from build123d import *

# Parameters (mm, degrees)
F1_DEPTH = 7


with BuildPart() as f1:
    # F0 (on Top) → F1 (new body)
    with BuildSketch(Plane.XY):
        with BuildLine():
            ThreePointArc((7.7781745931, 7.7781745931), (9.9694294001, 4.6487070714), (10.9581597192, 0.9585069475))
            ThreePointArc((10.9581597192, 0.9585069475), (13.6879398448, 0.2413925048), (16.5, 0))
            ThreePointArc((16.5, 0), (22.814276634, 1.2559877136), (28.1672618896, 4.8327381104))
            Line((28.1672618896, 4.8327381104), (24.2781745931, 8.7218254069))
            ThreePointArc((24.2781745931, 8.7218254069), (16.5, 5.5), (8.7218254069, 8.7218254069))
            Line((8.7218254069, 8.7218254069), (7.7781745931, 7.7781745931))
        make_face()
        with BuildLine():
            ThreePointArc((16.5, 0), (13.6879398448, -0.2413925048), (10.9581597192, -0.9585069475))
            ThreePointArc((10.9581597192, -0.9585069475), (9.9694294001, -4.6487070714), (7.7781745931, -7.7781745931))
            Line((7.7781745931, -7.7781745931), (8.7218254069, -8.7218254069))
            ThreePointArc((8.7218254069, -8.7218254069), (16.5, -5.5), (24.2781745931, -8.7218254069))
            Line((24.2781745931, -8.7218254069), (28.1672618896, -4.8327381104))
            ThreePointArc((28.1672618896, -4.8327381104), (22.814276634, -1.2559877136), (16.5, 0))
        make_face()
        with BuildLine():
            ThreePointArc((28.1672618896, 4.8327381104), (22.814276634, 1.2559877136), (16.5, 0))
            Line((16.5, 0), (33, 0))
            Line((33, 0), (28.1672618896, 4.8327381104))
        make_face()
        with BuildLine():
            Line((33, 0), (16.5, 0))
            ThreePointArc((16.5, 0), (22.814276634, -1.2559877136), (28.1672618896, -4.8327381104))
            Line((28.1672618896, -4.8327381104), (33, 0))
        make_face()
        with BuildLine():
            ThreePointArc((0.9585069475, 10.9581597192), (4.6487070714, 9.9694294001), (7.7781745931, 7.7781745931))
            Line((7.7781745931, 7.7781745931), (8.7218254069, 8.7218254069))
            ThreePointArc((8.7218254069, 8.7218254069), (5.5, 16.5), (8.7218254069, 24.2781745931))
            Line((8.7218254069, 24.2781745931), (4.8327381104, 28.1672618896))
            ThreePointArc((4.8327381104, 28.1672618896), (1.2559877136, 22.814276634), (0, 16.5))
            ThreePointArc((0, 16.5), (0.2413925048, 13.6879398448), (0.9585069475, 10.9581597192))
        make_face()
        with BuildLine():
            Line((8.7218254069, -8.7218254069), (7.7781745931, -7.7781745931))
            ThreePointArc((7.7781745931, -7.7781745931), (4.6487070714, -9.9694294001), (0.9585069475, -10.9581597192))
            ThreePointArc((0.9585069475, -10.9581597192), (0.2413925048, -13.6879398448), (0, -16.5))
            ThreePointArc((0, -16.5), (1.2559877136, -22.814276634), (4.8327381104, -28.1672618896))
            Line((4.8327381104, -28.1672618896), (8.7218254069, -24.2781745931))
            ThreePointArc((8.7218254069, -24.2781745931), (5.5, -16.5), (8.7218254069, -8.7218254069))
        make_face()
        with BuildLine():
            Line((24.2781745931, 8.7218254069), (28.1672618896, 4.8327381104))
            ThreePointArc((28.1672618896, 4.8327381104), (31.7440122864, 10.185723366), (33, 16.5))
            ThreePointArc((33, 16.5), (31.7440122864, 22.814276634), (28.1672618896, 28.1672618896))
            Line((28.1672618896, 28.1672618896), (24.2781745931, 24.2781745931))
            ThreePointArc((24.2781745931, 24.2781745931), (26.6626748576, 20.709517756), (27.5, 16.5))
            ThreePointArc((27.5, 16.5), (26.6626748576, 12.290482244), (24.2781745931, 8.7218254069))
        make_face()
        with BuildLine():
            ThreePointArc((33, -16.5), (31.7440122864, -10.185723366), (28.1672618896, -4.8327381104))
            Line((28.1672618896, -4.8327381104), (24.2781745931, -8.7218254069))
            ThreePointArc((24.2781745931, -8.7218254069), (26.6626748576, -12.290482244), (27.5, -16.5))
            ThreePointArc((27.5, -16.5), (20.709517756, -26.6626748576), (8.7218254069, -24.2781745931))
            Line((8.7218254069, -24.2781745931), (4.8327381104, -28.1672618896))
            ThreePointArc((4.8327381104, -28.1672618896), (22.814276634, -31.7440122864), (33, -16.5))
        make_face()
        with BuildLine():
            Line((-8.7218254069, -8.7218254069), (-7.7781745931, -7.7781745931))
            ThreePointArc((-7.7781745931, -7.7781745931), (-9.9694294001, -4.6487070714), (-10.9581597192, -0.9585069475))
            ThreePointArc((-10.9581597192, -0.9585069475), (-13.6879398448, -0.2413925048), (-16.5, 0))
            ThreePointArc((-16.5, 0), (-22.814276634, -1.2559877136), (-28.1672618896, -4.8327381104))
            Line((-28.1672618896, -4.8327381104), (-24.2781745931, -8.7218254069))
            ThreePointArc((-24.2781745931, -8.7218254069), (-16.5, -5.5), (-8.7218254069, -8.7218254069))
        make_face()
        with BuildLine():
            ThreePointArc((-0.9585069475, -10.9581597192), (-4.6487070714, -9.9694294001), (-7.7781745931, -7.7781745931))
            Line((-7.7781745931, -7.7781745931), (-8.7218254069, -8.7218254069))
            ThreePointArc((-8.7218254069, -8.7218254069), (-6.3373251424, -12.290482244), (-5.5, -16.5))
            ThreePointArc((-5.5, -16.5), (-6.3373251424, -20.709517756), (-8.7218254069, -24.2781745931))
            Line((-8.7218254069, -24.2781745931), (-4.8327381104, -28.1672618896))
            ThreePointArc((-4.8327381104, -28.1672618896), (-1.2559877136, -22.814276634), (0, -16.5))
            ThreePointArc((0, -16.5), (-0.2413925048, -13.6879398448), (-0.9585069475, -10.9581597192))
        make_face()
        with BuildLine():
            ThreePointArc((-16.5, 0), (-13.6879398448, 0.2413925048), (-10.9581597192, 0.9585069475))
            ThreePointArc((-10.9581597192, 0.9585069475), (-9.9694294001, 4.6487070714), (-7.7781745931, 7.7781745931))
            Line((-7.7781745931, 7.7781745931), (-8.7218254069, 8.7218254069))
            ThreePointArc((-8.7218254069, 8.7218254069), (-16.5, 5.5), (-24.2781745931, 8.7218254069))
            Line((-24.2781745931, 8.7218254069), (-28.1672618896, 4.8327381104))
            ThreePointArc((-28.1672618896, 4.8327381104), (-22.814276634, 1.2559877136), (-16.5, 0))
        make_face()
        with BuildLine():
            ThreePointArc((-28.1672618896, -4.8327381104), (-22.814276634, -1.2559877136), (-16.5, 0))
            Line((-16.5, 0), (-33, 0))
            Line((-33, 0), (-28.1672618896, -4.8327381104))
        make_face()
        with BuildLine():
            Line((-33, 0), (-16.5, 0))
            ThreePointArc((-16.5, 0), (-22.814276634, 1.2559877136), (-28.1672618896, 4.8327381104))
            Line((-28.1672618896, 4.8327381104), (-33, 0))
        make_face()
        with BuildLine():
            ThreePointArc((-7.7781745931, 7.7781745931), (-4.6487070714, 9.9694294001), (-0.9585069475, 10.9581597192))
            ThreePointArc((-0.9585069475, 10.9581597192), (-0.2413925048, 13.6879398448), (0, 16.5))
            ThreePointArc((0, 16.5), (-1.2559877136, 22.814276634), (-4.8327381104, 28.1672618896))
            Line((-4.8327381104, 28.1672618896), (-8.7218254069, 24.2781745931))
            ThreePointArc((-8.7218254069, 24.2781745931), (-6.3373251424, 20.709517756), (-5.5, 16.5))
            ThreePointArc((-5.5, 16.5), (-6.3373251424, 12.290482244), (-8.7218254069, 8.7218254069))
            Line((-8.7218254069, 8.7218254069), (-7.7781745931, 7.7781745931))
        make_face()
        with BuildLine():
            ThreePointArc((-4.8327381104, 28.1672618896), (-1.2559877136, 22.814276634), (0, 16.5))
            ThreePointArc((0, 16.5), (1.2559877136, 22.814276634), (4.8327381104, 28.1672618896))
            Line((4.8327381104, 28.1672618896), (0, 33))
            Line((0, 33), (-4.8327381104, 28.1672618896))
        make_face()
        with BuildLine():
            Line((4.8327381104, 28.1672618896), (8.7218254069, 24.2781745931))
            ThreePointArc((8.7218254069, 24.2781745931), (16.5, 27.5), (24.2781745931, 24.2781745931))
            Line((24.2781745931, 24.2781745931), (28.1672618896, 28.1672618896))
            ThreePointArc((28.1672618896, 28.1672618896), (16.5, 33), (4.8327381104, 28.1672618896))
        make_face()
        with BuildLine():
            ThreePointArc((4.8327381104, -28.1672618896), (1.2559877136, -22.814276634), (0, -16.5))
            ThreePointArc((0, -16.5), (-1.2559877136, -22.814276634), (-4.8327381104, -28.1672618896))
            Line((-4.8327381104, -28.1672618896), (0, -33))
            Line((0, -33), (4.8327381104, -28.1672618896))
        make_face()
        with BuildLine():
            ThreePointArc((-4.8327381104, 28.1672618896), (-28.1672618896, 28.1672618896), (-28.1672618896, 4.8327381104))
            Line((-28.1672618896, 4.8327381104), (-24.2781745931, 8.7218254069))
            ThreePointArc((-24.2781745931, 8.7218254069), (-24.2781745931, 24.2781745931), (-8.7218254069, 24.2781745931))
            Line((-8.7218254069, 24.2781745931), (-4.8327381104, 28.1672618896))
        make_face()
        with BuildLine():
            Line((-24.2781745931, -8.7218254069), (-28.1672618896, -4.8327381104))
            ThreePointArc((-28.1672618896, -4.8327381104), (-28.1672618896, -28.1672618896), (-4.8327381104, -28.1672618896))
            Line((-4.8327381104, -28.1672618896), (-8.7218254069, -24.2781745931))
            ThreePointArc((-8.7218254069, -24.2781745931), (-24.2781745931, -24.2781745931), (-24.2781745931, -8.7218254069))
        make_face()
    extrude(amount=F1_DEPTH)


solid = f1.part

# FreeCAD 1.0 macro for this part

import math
import FreeCAD as App
import Part
import Sketcher
Q = App.Units.Quantity

doc = App.newDocument("Part")
body = doc.addObject("PartDesign::Body", "Body")

sketch1 = doc.addObject("Sketcher::SketchObject", "Sketch")
body.addObject(sketch1)
sketch1.AttachmentSupport = (doc.XY_Plane, [""])
sketch1.MapMode = "FlatFace"
sketch1.addGeometry(Part.LineSegment(App.Vector(-5, -28, 0), App.Vector(0, -33, 0)), False)
sketch1.addGeometry(Part.LineSegment(App.Vector(0, -33, 0), App.Vector(5, -28, 0)), False)
sketch1.addGeometry(Part.ArcOfCircle(Part.Circle(App.Vector(16, -16, 0), App.Vector(0, 0, 1), 16), math.radians(-135), math.radians(0)), False)
sketch1.addGeometry(Part.ArcOfCircle(Part.Circle(App.Vector(16, -16, 0), App.Vector(0, 0, 1), 17), math.radians(0), math.radians(45)), False)
sketch1.addGeometry(Part.LineSegment(App.Vector(28, -5, 0), App.Vector(33, 0, 0)), False)
sketch1.addGeometry(Part.LineSegment(App.Vector(33, 0, 0), App.Vector(28, 5, 0)), False)
sketch1.addGeometry(Part.ArcOfCircle(Part.Circle(App.Vector(16, 16, 0), App.Vector(0, 0, 1), 17), math.radians(-45), math.radians(0)), False)
sketch1.addGeometry(Part.ArcOfCircle(Part.Circle(App.Vector(16, 16, 0), App.Vector(0, 0, 1), 17), math.radians(0), math.radians(45)), False)
sketch1.addGeometry(Part.ArcOfCircle(Part.Circle(App.Vector(16, 16, 0), App.Vector(0, 0, 1), 16), math.radians(45), math.radians(135)), False)
sketch1.addGeometry(Part.LineSegment(App.Vector(5, 28, 0), App.Vector(0, 33, 0)), False)
sketch1.addGeometry(Part.LineSegment(App.Vector(0, 33, 0), App.Vector(-5, 28, 0)), False)
sketch1.addGeometry(Part.ArcOfCircle(Part.Circle(App.Vector(-16, 16, 0), App.Vector(0, 0, 1), 16), math.radians(45), math.radians(225)), False)
sketch1.addGeometry(Part.LineSegment(App.Vector(-28, 5, 0), App.Vector(-33, 0, 0)), False)
sketch1.addGeometry(Part.LineSegment(App.Vector(-33, 0, 0), App.Vector(-28, -5, 0)), False)
sketch1.addGeometry(Part.ArcOfCircle(Part.Circle(App.Vector(-16, -16, 0), App.Vector(0, 0, 1), 16), math.radians(135), math.radians(315)), False)
sketch1.addGeometry(Part.ArcOfCircle(Part.Circle(App.Vector(-16, -16, 0), App.Vector(0, 0, 1), 11), math.radians(45), math.radians(135)), False)
sketch1.addGeometry(Part.ArcOfCircle(Part.Circle(App.Vector(-17, -16, 0), App.Vector(0, 0, 1), 11), math.radians(0), math.radians(45)), False)
sketch1.addGeometry(Part.ArcOfCircle(Part.Circle(App.Vector(-17, -16, 0), App.Vector(0, 0, 1), 11), math.radians(-45), math.radians(0)), False)
sketch1.addGeometry(Part.ArcOfCircle(Part.Circle(App.Vector(-16, -16, 0), App.Vector(0, 0, 1), 11), math.radians(135), math.radians(315)), False)
sketch1.addGeometry(Part.ArcOfCircle(Part.Circle(App.Vector(-17, 16, 0), App.Vector(0, 0, 1), 11), math.radians(0), math.radians(45)), False)
sketch1.addGeometry(Part.ArcOfCircle(Part.Circle(App.Vector(-17, 16, 0), App.Vector(0, 0, 1), 11), math.radians(-45), math.radians(0)), False)
sketch1.addGeometry(Part.ArcOfCircle(Part.Circle(App.Vector(-16, 16, 0), App.Vector(0, 0, 1), 11), math.radians(-135), math.radians(-45)), False)
sketch1.addGeometry(Part.ArcOfCircle(Part.Circle(App.Vector(-16, 16, 0), App.Vector(0, 0, 1), 11), math.radians(45), math.radians(225)), False)
sketch1.addGeometry(Part.ArcOfCircle(Part.Circle(App.Vector(16, -16, 0), App.Vector(0, 0, 1), 16), math.radians(160.37), math.radians(180)), False)
sketch1.addGeometry(Part.ArcOfCircle(Part.Circle(App.Vector(-16, -16, 0), App.Vector(0, 0, 1), 16), math.radians(0), math.radians(19.63)), False)
sketch1.addGeometry(Part.ArcOfCircle(Part.Circle(App.Vector(0, 0, 0), App.Vector(0, 0, 1), 11), math.radians(-135), math.radians(-95)), False)
sketch1.addGeometry(Part.ArcOfCircle(Part.Circle(App.Vector(0, 0, 0), App.Vector(0, 0, 1), 11), math.radians(-175), math.radians(-135)), False)
sketch1.addGeometry(Part.ArcOfCircle(Part.Circle(App.Vector(-16, -16, 0), App.Vector(0, 0, 1), 16), math.radians(70.37), math.radians(90)), False)
sketch1.addGeometry(Part.ArcOfCircle(Part.Circle(App.Vector(-16, 16, 0), App.Vector(0, 0, 1), 16), math.radians(-90), math.radians(-70.37)), False)
sketch1.addGeometry(Part.ArcOfCircle(Part.Circle(App.Vector(0, 0, 0), App.Vector(0, 0, 1), 11), math.radians(135), math.radians(175)), False)
sketch1.addGeometry(Part.ArcOfCircle(Part.Circle(App.Vector(0, 0, 0), App.Vector(0, 0, 1), 11), math.radians(95), math.radians(135)), False)
sketch1.addGeometry(Part.ArcOfCircle(Part.Circle(App.Vector(-16, 16, 0), App.Vector(0, 0, 1), 16), math.radians(-19.63), math.radians(0)), False)
sketch1.addGeometry(Part.ArcOfCircle(Part.Circle(App.Vector(16, 16, 0), App.Vector(0, 0, 1), 16), math.radians(180), math.radians(199.63)), False)
sketch1.addGeometry(Part.ArcOfCircle(Part.Circle(App.Vector(0, 0, 0), App.Vector(0, 0, 1), 11), math.radians(45), math.radians(85)), False)
sketch1.addGeometry(Part.ArcOfCircle(Part.Circle(App.Vector(0, 0, 0), App.Vector(0, 0, 1), 11), math.radians(5), math.radians(45)), False)
sketch1.addGeometry(Part.ArcOfCircle(Part.Circle(App.Vector(16, 16, 0), App.Vector(0, 0, 1), 16), math.radians(-109.63), math.radians(-90)), False)
sketch1.addGeometry(Part.ArcOfCircle(Part.Circle(App.Vector(16, -16, 0), App.Vector(0, 0, 1), 16), math.radians(90), math.radians(109.63)), False)
sketch1.addGeometry(Part.ArcOfCircle(Part.Circle(App.Vector(0, 0, 0), App.Vector(0, 0, 1), 11), math.radians(-45), math.radians(-5)), False)
sketch1.addGeometry(Part.ArcOfCircle(Part.Circle(App.Vector(0, 0, 0), App.Vector(0, 0, 1), 11), math.radians(-85), math.radians(-45)), False)
sketch1.addGeometry(Part.ArcOfCircle(Part.Circle(App.Vector(16, -16, 0), App.Vector(0, 0, 1), 11), math.radians(135), math.radians(225)), False)
sketch1.addGeometry(Part.ArcOfCircle(Part.Circle(App.Vector(16, -16, 0), App.Vector(0, 0, 1), 11), math.radians(45), math.radians(135)), False)
sketch1.addGeometry(Part.ArcOfCircle(Part.Circle(App.Vector(16, -16, 0), App.Vector(0, 0, 1), 11), math.radians(0), math.radians(45)), False)
sketch1.addGeometry(Part.ArcOfCircle(Part.Circle(App.Vector(16, -16, 0), App.Vector(0, 0, 1), 11), math.radians(-135), math.radians(0)), False)
sketch1.addGeometry(Part.ArcOfCircle(Part.Circle(App.Vector(16, 16, 0), App.Vector(0, 0, 1), 11), math.radians(135), math.radians(225)), False)
sketch1.addGeometry(Part.ArcOfCircle(Part.Circle(App.Vector(16, 16, 0), App.Vector(0, 0, 1), 11), math.radians(45), math.radians(135)), False)
sketch1.addGeometry(Part.ArcOfCircle(Part.Circle(App.Vector(16, 16, 0), App.Vector(0, 0, 1), 11), math.radians(0), math.radians(45)), False)
sketch1.addGeometry(Part.ArcOfCircle(Part.Circle(App.Vector(16, 16, 0), App.Vector(0, 0, 1), 11), math.radians(-45), math.radians(0)), False)
sketch1.addGeometry(Part.ArcOfCircle(Part.Circle(App.Vector(16, 16, 0), App.Vector(0, 0, 1), 11), math.radians(-135), math.radians(-45)), False)
sketch1.addConstraint(Sketcher.Constraint("Coincident", 0, 2, 1, 1))
sketch1.addConstraint(Sketcher.Constraint("Coincident", 1, 2, 2, 1))
sketch1.addConstraint(Sketcher.Constraint("Tangent", 2, 2, 3, 1))
sketch1.addConstraint(Sketcher.Constraint("Coincident", 3, 2, 4, 1))
sketch1.addConstraint(Sketcher.Constraint("Coincident", 4, 2, 5, 1))
sketch1.addConstraint(Sketcher.Constraint("Coincident", 5, 2, 6, 1))
sketch1.addConstraint(Sketcher.Constraint("Tangent", 6, 2, 7, 1))
sketch1.addConstraint(Sketcher.Constraint("Tangent", 7, 2, 8, 1))
sketch1.addConstraint(Sketcher.Constraint("Coincident", 8, 2, 9, 1))
sketch1.addConstraint(Sketcher.Constraint("Coincident", 9, 2, 10, 1))
sketch1.addConstraint(Sketcher.Constraint("Coincident", 10, 2, 11, 1))
sketch1.addConstraint(Sketcher.Constraint("Coincident", 11, 2, 12, 1))
sketch1.addConstraint(Sketcher.Constraint("Coincident", 12, 2, 13, 1))
sketch1.addConstraint(Sketcher.Constraint("Coincident", 13, 2, 14, 1))
sketch1.addConstraint(Sketcher.Constraint("Coincident", 14, 2, 0, 1))
sketch1.addConstraint(Sketcher.Constraint("Tangent", 15, 1, 16, 2))
sketch1.addConstraint(Sketcher.Constraint("Tangent", 16, 1, 17, 2))
sketch1.addConstraint(Sketcher.Constraint("Tangent", 17, 1, 18, 2))
sketch1.addConstraint(Sketcher.Constraint("Tangent", 18, 1, 15, 2))
sketch1.addConstraint(Sketcher.Constraint("Tangent", 19, 1, 20, 2))
sketch1.addConstraint(Sketcher.Constraint("Tangent", 20, 1, 21, 2))
sketch1.addConstraint(Sketcher.Constraint("Tangent", 21, 1, 22, 2))
sketch1.addConstraint(Sketcher.Constraint("Tangent", 22, 1, 19, 2))
sketch1.addConstraint(Sketcher.Constraint("Tangent", 23, 2, 24, 1))
sketch1.addConstraint(Sketcher.Constraint("Coincident", 24, 2, 25, 2))
sketch1.addConstraint(Sketcher.Constraint("Tangent", 25, 1, 26, 2))
sketch1.addConstraint(Sketcher.Constraint("Coincident", 26, 1, 27, 1))
sketch1.addConstraint(Sketcher.Constraint("Tangent", 27, 2, 28, 1))
sketch1.addConstraint(Sketcher.Constraint("Coincident", 28, 2, 29, 2))
sketch1.addConstraint(Sketcher.Constraint("Tangent", 29, 1, 30, 2))
sketch1.addConstraint(Sketcher.Constraint("Coincident", 30, 1, 31, 1))
sketch1.addConstraint(Sketcher.Constraint("Tangent", 31, 2, 32, 1))
sketch1.addConstraint(Sketcher.Constraint("Coincident", 32, 2, 33, 2))
sketch1.addConstraint(Sketcher.Constraint("Tangent", 33, 1, 34, 2))
sketch1.addConstraint(Sketcher.Constraint("Coincident", 34, 1, 35, 1))
sketch1.addConstraint(Sketcher.Constraint("Tangent", 35, 2, 36, 1))
sketch1.addConstraint(Sketcher.Constraint("Coincident", 36, 2, 37, 2))
sketch1.addConstraint(Sketcher.Constraint("Tangent", 37, 1, 38, 2))
sketch1.addConstraint(Sketcher.Constraint("Coincident", 38, 1, 23, 1))
sketch1.addConstraint(Sketcher.Constraint("Tangent", 39, 1, 40, 2))
sketch1.addConstraint(Sketcher.Constraint("Tangent", 40, 1, 41, 2))
sketch1.addConstraint(Sketcher.Constraint("Tangent", 41, 1, 42, 2))
sketch1.addConstraint(Sketcher.Constraint("Tangent", 42, 1, 39, 2))
sketch1.addConstraint(Sketcher.Constraint("Tangent", 43, 1, 44, 2))
sketch1.addConstraint(Sketcher.Constraint("Tangent", 44, 1, 45, 2))
sketch1.addConstraint(Sketcher.Constraint("Tangent", 45, 1, 46, 2))
sketch1.addConstraint(Sketcher.Constraint("Tangent", 46, 1, 47, 2))
sketch1.addConstraint(Sketcher.Constraint("Tangent", 47, 1, 43, 2))
sketch1.addConstraint(Sketcher.Constraint("Coincident", 25, 3, -1, 1))
sketch1.addConstraint(Sketcher.Constraint("Coincident", 29, 3, -1, 1))
sketch1.addConstraint(Sketcher.Constraint("Coincident", 33, 3, -1, 1))
sketch1.addConstraint(Sketcher.Constraint("Coincident", 37, 3, -1, 1))
sketch1.addConstraint(Sketcher.Constraint("Coincident", 8, 3, 6, 3))
sketch1.addConstraint(Sketcher.Constraint("Coincident", 15, 3, 14, 3))
sketch1.addConstraint(Sketcher.Constraint("Coincident", 19, 3, 11, 3))
sketch1.addConstraint(Sketcher.Constraint("Coincident", 23, 3, 2, 3))
sketch1.addConstraint(Sketcher.Constraint("Coincident", 24, 3, 14, 3))
sketch1.addConstraint(Sketcher.Constraint("Coincident", 27, 3, 14, 3))
sketch1.addConstraint(Sketcher.Constraint("Coincident", 28, 3, 11, 3))
sketch1.addConstraint(Sketcher.Constraint("Coincident", 31, 3, 11, 3))
sketch1.addConstraint(Sketcher.Constraint("Coincident", 32, 3, 6, 3))
sketch1.addConstraint(Sketcher.Constraint("Coincident", 35, 3, 6, 3))
sketch1.addConstraint(Sketcher.Constraint("Coincident", 36, 3, 2, 3))
sketch1.addConstraint(Sketcher.Constraint("Coincident", 39, 3, 2, 3))
sketch1.addConstraint(Sketcher.Constraint("Coincident", 43, 3, 6, 3))
sketch1.addConstraint(Sketcher.Constraint("Coincident", 45, 3, 6, 3))
sketch1.addConstraint(Sketcher.Constraint("Equal", 2, 3))
sketch1.addConstraint(Sketcher.Constraint("Equal", 3, 6))
sketch1.addConstraint(Sketcher.Constraint("Equal", 8, 11))
sketch1.addConstraint(Sketcher.Constraint("Equal", 11, 14))
sketch1.addConstraint(Sketcher.Constraint("Equal", 15, 16))
sketch1.addConstraint(Sketcher.Constraint("Equal", 18, 19))
sketch1.addConstraint(Sketcher.Constraint("Equal", 19, 20))
sketch1.addConstraint(Sketcher.Constraint("Equal", 14, 23))
sketch1.addConstraint(Sketcher.Constraint("Equal", 23, 24))
sketch1.addConstraint(Sketcher.Constraint("Equal", 22, 25))
sketch1.addConstraint(Sketcher.Constraint("Equal", 25, 26))
sketch1.addConstraint(Sketcher.Constraint("Equal", 24, 27))
sketch1.addConstraint(Sketcher.Constraint("Equal", 27, 28))
sketch1.addConstraint(Sketcher.Constraint("Equal", 26, 29))
sketch1.addConstraint(Sketcher.Constraint("Equal", 29, 30))
sketch1.addConstraint(Sketcher.Constraint("Equal", 28, 31))
sketch1.addConstraint(Sketcher.Constraint("Equal", 31, 32))
sketch1.addConstraint(Sketcher.Constraint("Equal", 30, 33))
sketch1.addConstraint(Sketcher.Constraint("Equal", 33, 34))
sketch1.addConstraint(Sketcher.Constraint("Equal", 32, 35))
sketch1.addConstraint(Sketcher.Constraint("Equal", 35, 36))
sketch1.addConstraint(Sketcher.Constraint("Equal", 34, 37))
sketch1.addConstraint(Sketcher.Constraint("Equal", 37, 38))
sketch1.addConstraint(Sketcher.Constraint("Equal", 38, 39))
sketch1.addConstraint(Sketcher.Constraint("Equal", 39, 40))
sketch1.addConstraint(Sketcher.Constraint("Equal", 42, 43))
sketch1.addConstraint(Sketcher.Constraint("Symmetric", 2, 3, 11, 3, -1, 1))
sketch1.addConstraint(Sketcher.Constraint("Symmetric", 0, 2, 9, 2, -1, 1))
sketch1.addConstraint(Sketcher.Constraint("Symmetric", 4, 2, 12, 2, -1, 1))
sketch1.addConstraint(Sketcher.Constraint("Symmetric", 6, 3, 11, 3, -2))
sketch1.addConstraint(Sketcher.Constraint("PointOnObject", 0, 2, -2))
sketch1.addConstraint(Sketcher.Constraint("PointOnObject", 4, 2, -1))
sketch1.addConstraint(Sketcher.Constraint("Perpendicular", 0, 1))
sketch1.addConstraint(Sketcher.Constraint("Parallel", 1, 4))
sketch1.addConstraint(Sketcher.Constraint("Perpendicular", 4, 5))
sketch1.addConstraint(Sketcher.Constraint("Parallel", 5, 9))
sketch1.addConstraint(Sketcher.Constraint("Perpendicular", 9, 10))
sketch1.addConstraint(Sketcher.Constraint("Parallel", 10, 12))
sketch1.addConstraint(Sketcher.Constraint("Perpendicular", 12, 13))
sketch1.addConstraint(Sketcher.Constraint("Horizontal", 42, 3, 2, 2))
sketch1.addConstraint(Sketcher.Constraint("Horizontal", 47, 3, 6, 2))
sketch1.addConstraint(Sketcher.Constraint("Horizontal", 7, 2, 8, 2))
sketch1.addConstraint(Sketcher.Constraint("Horizontal", 8, 2, 10, 2))
sketch1.addConstraint(Sketcher.Constraint("Horizontal", 2, 2, 16, 1))
sketch1.addConstraint(Sketcher.Constraint("Horizontal", 15, 1, 18, 1))
sketch1.addConstraint(Sketcher.Constraint("Horizontal", 6, 2, 19, 1))
sketch1.addConstraint(Sketcher.Constraint("Horizontal", 20, 1, 21, 1))
sketch1.addConstraint(Sketcher.Constraint("Horizontal", 29, 1, 33, 1))
sketch1.addConstraint(Sketcher.Constraint("Horizontal", 25, 1, 37, 1))
sketch1.addConstraint(Sketcher.Constraint("Horizontal", 18, 1, 39, 1))
sketch1.addConstraint(Sketcher.Constraint("Horizontal", 39, 1, 40, 1))
sketch1.addConstraint(Sketcher.Constraint("Horizontal", 23, 2, 41, 1))
sketch1.addConstraint(Sketcher.Constraint("Horizontal", 17, 1, 42, 1))
sketch1.addConstraint(Sketcher.Constraint("Horizontal", 22, 1, 43, 1))
sketch1.addConstraint(Sketcher.Constraint("Horizontal", 43, 1, 44, 1))
sketch1.addConstraint(Sketcher.Constraint("Horizontal", 31, 2, 45, 1))
sketch1.addConstraint(Sketcher.Constraint("Horizontal", 21, 1, 46, 1))
sketch1.addConstraint(Sketcher.Constraint("Horizontal", 46, 1, 47, 1))
sketch1.addConstraint(Sketcher.Constraint("Vertical", 2, 2, 4, 2))
sketch1.addConstraint(Sketcher.Constraint("Vertical", 5, 2, 7, 2))
sketch1.addConstraint(Sketcher.Constraint("Vertical", 15, 1, 17, 1))
sketch1.addConstraint(Sketcher.Constraint("Vertical", 17, 1, 20, 1))
sketch1.addConstraint(Sketcher.Constraint("Vertical", 20, 1, 22, 1))
sketch1.addConstraint(Sketcher.Constraint("Vertical", 25, 1, 29, 1))
sketch1.addConstraint(Sketcher.Constraint("Radius", 15, Q("11 mm")))
sketch1.addConstraint(Sketcher.Constraint("Radius", 2, Q("16.5 mm")))
sketch1.addConstraint(Sketcher.Constraint("DistanceX", 15, 1, -1, 1, Q("8.721825 mm")))
sketch1.addConstraint(Sketcher.Constraint("DistanceX", 25, 1, -1, 1, Q("7.778175 mm")))
pad1 = doc.addObject("PartDesign::Pad", "Pad")
body.addObject(pad1)
pad1.Profile = sketch1
pad1.Length = 7

doc.recompute()
